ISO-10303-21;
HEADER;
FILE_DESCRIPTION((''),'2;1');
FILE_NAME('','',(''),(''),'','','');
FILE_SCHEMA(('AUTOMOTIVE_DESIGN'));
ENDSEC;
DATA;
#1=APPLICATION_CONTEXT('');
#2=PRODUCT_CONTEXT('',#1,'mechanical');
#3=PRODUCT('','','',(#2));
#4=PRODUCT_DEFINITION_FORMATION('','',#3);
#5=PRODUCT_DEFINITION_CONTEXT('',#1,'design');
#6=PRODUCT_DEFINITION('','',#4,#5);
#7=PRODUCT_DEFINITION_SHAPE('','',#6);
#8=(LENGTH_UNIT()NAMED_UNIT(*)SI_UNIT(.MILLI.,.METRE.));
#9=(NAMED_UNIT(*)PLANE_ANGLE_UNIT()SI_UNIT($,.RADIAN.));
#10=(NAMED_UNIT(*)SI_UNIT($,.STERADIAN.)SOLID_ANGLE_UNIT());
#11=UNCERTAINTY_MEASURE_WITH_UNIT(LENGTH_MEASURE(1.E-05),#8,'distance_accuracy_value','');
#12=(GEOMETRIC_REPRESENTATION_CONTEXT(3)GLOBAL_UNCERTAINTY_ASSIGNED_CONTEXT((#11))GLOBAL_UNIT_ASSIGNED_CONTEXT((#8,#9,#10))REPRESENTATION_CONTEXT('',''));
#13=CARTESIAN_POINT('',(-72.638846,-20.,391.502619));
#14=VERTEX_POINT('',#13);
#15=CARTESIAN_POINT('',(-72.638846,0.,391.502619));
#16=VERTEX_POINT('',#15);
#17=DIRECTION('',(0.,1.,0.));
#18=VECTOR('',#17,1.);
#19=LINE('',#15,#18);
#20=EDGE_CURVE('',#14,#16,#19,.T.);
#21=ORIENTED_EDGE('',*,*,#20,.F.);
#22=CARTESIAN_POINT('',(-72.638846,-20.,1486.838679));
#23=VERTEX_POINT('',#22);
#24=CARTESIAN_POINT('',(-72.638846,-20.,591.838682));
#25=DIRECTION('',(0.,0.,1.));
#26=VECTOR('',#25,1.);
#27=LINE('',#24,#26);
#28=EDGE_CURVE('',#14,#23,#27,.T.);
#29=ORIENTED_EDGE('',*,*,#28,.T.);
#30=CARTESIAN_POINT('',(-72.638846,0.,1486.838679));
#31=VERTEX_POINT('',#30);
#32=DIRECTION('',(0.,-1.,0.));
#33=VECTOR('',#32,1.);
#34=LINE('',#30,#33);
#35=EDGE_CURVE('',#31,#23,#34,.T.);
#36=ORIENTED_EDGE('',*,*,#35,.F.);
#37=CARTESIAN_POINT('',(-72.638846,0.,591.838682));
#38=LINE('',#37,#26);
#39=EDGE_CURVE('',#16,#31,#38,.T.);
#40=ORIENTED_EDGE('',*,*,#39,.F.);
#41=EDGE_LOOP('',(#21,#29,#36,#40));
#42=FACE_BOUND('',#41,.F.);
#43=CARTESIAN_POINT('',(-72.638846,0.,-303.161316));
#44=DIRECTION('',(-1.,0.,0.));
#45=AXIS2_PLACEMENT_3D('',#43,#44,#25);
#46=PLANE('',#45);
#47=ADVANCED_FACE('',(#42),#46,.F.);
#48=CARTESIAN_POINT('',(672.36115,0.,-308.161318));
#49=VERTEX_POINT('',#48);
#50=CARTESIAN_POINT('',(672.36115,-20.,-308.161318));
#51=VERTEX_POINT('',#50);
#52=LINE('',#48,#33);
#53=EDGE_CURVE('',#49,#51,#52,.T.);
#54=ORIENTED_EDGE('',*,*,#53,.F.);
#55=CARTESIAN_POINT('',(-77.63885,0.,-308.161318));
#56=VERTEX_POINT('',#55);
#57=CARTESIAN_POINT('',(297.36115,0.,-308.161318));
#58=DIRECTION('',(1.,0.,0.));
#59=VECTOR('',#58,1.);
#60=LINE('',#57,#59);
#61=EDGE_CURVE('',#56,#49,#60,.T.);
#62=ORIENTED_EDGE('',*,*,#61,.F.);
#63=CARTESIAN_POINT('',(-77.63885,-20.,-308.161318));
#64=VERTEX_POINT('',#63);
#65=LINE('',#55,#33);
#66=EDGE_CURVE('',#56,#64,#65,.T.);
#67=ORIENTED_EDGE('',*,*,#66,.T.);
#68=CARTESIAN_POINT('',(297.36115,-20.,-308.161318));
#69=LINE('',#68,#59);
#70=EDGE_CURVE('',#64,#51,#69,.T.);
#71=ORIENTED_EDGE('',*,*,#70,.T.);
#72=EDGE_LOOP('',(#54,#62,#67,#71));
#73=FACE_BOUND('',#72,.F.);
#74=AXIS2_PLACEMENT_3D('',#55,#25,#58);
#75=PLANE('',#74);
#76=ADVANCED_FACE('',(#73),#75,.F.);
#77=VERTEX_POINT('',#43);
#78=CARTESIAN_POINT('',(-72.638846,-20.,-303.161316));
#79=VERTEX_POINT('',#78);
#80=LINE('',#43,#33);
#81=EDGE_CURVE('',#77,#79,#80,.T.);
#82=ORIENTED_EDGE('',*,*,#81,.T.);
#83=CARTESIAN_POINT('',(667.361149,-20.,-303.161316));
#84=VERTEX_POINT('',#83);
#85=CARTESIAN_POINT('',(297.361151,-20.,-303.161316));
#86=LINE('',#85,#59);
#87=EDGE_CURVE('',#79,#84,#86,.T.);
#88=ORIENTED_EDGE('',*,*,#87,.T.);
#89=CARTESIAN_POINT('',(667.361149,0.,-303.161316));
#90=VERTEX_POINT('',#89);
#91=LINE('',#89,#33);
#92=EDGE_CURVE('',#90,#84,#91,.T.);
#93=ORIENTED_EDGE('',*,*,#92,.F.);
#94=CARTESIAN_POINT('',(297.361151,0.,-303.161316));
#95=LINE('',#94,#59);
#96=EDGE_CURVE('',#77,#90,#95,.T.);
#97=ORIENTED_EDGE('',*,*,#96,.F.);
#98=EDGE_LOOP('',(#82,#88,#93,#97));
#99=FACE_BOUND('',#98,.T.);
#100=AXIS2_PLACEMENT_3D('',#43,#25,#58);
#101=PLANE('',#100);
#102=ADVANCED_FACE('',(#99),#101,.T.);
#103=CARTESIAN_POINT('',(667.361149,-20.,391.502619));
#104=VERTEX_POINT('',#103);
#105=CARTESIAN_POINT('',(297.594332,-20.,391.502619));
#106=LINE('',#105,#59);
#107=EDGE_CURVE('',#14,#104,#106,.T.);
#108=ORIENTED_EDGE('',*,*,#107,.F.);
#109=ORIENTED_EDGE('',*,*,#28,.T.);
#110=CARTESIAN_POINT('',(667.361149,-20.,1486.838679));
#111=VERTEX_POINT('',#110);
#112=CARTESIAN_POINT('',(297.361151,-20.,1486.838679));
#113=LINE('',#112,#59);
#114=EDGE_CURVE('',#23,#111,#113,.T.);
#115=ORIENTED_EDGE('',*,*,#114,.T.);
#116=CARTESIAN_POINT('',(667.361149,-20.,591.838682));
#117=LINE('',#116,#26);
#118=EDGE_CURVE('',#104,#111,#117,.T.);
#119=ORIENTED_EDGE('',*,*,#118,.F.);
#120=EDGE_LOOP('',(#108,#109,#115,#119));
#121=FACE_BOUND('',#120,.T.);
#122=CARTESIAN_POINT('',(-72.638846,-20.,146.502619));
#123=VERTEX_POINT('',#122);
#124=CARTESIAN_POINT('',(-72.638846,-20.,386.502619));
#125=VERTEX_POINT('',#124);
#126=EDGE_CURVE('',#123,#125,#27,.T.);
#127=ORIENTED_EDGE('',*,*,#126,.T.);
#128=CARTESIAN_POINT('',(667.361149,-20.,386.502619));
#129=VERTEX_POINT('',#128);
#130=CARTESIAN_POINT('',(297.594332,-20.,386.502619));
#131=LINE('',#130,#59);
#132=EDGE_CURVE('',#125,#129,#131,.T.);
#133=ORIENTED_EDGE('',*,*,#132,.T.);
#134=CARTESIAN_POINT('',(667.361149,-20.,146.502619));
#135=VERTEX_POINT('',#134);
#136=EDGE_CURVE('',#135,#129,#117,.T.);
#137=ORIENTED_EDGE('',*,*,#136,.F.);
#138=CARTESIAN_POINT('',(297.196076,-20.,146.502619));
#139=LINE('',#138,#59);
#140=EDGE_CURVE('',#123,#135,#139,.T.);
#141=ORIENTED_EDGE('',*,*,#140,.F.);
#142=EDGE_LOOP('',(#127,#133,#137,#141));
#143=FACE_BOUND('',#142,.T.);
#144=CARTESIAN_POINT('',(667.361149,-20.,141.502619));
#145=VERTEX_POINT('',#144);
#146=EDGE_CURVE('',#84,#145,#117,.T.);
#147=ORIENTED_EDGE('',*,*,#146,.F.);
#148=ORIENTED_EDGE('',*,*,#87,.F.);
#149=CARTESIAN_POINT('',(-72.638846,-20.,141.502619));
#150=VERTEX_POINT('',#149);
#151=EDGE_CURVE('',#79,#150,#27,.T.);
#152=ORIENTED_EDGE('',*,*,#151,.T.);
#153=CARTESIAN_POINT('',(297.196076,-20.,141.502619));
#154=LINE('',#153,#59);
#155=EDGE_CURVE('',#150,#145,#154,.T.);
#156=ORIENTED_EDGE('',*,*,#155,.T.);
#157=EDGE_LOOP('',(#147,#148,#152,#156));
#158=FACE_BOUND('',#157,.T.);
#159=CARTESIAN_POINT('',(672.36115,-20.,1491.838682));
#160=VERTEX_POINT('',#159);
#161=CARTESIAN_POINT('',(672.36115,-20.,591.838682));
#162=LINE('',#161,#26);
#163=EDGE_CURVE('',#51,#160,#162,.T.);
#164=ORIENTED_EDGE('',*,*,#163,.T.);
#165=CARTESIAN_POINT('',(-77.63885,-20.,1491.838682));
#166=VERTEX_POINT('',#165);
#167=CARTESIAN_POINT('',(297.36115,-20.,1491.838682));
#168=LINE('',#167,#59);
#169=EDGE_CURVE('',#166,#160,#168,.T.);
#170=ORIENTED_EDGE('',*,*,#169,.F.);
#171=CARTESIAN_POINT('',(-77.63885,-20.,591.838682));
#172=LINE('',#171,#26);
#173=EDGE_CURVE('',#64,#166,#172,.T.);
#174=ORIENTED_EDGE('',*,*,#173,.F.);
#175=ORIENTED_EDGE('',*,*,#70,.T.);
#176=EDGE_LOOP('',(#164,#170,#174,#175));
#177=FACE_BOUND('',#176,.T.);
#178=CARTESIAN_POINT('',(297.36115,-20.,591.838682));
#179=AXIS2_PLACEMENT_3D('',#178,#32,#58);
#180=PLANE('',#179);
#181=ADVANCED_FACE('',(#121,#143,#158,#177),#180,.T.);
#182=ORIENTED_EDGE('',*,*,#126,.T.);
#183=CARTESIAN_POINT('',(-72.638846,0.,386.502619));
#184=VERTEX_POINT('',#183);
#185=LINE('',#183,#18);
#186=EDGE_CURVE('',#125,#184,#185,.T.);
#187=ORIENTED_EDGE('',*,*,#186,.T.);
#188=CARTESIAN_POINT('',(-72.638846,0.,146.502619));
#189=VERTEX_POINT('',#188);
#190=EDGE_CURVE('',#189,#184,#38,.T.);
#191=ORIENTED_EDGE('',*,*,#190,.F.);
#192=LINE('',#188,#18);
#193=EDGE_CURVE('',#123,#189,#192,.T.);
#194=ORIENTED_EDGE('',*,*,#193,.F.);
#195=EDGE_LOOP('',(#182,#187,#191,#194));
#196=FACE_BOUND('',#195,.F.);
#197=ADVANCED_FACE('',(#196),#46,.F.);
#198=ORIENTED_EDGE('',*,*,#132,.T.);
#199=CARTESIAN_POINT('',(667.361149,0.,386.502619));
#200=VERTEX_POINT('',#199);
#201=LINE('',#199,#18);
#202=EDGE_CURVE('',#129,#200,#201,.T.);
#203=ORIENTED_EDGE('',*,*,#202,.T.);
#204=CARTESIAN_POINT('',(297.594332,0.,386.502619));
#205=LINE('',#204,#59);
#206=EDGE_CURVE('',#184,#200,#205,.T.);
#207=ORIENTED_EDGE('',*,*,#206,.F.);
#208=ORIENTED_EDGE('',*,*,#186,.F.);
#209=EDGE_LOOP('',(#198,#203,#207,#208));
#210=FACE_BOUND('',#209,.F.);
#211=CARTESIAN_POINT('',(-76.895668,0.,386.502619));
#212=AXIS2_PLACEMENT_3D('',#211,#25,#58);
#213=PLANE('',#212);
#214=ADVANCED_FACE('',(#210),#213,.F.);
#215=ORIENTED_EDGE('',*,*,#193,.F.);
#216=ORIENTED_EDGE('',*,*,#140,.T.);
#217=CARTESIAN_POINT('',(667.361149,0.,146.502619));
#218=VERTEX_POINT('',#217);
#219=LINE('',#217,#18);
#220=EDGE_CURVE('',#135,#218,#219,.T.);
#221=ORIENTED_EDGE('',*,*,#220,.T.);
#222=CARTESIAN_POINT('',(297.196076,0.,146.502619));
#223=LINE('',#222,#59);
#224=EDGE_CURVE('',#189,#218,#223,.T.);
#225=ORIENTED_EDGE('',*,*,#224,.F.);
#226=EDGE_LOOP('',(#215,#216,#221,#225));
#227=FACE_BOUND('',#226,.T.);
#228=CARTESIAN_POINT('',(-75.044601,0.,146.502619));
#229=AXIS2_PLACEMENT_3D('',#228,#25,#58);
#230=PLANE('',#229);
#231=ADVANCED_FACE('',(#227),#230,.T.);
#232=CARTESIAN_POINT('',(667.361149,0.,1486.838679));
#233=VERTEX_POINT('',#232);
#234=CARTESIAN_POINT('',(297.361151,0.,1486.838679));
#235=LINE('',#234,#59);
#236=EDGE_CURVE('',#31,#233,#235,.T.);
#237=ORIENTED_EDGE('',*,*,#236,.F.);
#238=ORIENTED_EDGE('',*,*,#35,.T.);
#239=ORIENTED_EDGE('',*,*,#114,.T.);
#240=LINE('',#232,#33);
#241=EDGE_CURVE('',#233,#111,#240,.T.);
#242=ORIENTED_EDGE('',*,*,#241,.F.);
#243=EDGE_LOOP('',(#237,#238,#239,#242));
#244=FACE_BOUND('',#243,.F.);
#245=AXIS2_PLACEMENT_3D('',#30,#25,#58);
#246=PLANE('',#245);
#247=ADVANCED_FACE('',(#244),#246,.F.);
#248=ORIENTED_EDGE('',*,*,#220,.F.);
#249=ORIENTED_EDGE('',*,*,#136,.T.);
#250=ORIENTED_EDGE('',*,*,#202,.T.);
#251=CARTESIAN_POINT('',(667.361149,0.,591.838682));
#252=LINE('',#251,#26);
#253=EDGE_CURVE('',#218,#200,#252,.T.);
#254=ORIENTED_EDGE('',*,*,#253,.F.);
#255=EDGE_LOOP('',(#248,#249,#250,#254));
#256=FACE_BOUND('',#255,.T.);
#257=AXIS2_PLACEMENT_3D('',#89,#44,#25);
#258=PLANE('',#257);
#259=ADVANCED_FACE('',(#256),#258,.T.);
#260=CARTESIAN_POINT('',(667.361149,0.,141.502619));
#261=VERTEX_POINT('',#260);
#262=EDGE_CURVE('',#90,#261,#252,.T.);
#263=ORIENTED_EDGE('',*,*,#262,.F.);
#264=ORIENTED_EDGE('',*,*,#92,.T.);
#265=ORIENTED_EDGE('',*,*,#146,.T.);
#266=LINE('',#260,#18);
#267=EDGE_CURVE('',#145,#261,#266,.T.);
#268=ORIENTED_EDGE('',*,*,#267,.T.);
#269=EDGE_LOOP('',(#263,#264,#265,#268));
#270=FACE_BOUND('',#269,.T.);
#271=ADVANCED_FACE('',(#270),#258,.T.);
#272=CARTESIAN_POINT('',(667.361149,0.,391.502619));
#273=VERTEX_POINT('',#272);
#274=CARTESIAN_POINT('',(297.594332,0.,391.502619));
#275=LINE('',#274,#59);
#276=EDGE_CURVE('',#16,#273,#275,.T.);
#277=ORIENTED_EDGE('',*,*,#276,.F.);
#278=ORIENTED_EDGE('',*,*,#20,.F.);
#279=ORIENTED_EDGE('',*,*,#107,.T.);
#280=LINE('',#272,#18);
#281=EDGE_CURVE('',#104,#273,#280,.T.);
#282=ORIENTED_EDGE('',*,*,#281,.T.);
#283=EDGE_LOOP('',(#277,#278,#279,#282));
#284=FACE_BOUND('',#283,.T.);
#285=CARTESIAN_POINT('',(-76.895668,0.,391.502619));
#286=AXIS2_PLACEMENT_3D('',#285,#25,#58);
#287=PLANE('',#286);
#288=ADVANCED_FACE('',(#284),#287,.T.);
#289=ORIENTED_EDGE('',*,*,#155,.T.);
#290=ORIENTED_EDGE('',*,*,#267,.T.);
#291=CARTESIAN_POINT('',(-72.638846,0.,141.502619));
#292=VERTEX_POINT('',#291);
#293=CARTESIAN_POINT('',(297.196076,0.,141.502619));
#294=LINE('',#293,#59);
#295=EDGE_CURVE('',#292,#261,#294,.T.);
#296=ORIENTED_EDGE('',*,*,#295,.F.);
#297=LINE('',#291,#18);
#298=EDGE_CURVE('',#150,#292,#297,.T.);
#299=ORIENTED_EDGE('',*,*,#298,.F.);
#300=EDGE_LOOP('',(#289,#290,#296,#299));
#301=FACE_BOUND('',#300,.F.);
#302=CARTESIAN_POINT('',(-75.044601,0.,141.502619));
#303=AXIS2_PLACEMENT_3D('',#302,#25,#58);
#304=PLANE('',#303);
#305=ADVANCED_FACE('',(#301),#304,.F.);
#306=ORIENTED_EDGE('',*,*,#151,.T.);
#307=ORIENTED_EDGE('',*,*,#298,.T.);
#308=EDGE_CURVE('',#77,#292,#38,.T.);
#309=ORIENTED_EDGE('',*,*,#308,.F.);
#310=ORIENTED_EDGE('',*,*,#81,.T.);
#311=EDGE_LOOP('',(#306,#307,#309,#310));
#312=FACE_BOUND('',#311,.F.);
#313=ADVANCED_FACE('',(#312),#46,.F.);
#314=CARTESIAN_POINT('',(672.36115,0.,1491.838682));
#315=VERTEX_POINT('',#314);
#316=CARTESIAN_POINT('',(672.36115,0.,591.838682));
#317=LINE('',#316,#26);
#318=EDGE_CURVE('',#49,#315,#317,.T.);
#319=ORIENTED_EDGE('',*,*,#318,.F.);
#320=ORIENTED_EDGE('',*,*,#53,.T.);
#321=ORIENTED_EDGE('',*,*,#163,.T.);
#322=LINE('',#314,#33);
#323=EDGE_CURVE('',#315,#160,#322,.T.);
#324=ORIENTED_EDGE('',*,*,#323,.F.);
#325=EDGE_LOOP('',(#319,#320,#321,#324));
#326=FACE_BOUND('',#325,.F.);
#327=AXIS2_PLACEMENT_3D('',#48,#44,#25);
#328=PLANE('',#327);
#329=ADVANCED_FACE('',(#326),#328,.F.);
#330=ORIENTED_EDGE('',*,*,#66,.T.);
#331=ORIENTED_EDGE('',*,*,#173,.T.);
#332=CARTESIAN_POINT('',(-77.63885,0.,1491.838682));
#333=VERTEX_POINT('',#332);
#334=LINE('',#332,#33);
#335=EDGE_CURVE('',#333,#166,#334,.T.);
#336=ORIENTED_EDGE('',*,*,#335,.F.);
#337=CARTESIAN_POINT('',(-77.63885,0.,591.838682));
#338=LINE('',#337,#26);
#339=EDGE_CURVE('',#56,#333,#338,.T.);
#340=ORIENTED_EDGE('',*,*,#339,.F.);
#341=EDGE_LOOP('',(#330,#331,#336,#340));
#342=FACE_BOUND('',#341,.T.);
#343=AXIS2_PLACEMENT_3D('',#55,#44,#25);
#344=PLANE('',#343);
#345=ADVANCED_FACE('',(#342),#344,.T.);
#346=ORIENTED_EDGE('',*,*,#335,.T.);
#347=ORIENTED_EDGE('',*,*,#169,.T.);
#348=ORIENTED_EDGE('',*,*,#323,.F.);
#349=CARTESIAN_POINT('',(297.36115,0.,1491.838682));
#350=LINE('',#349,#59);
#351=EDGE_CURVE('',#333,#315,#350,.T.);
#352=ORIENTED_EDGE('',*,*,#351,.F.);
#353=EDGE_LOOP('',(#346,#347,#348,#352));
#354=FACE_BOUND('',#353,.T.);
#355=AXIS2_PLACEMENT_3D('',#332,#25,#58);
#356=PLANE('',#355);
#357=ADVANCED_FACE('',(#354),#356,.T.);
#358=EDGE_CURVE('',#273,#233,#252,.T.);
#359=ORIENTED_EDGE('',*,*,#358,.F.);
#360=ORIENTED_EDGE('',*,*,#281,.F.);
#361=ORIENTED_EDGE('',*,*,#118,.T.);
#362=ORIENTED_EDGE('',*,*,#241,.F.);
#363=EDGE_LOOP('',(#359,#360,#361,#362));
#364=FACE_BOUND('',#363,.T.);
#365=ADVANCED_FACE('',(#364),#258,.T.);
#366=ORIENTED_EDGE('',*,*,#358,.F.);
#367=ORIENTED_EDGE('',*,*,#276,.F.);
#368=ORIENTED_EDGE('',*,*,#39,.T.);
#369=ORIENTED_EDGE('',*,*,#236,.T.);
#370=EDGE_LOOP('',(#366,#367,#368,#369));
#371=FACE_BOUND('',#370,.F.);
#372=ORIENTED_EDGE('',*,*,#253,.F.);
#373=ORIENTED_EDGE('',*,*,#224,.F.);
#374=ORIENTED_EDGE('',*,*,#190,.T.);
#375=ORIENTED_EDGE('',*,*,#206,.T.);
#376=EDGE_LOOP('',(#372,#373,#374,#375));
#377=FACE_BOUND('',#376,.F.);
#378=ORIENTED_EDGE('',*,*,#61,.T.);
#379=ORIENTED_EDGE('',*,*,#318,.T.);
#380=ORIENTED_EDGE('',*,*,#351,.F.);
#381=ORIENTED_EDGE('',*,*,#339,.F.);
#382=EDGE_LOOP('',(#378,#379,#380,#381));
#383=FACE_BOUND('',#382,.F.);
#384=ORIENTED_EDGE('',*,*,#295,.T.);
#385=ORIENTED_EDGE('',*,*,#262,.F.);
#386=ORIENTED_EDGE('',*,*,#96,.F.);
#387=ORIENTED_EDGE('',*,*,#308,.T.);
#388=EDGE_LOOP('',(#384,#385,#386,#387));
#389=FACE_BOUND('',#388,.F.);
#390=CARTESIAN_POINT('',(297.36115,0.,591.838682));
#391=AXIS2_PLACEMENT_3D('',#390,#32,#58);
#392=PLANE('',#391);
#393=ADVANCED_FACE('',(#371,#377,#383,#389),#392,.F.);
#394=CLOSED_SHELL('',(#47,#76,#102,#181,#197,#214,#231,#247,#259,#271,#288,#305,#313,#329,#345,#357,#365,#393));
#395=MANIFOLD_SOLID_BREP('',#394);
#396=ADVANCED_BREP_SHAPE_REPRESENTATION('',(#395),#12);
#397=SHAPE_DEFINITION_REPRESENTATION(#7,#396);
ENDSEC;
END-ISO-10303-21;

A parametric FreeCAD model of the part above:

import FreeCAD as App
import Part
import Sketcher
from FreeCAD import Vector

doc = App.newDocument("Part")
body = doc.addObject("PartDesign::Body", "Body")

# Sketch on XZ plane
sketch1 = body.newObject("Sketcher::SketchObject", "Sketch")
sketch1.AttachmentSupport = (doc.getObject("XZ_Plane"), [""])
sketch1.MapMode = "FlatFace"
sketch1.addGeometry([
    Part.LineSegment(Vector(-77.63885, 1491.838682, 0), Vector(-77.63885, -308.161318, 0)),  # 0
    Part.LineSegment(Vector(-77.63885, -308.161318, 0), Vector(672.36115, -308.161318, 0)),  # 1
    Part.LineSegment(Vector(672.36115, -308.161318, 0), Vector(672.36115, 1491.838682, 0)),  # 2
    Part.LineSegment(Vector(672.36115, 1491.838682, 0), Vector(-77.63885, 1491.838682, 0)),  # 3
    Part.LineSegment(Vector(667.361149, -303.161316, 0), Vector(-72.638846, -303.161316, 0)),  # 4
    Part.LineSegment(Vector(-72.638846, -303.161316, 0), Vector(-72.638846, 1486.838679, 0)),  # 5
    Part.LineSegment(Vector(-72.638846, 1486.838679, 0), Vector(667.361149, 1486.838679, 0)),  # 6
    Part.LineSegment(Vector(667.361149, 1486.838679, 0), Vector(667.361149, -303.161316, 0)),  # 7
], False)
sketch1.addConstraint([
    Sketcher.Constraint("Coincident", 0, 2, 1, 1),
    Sketcher.Constraint("Coincident", 1, 2, 2, 1),
    Sketcher.Constraint("Coincident", 2, 2, 3, 1),
    Sketcher.Constraint("Coincident", 3, 2, 0, 1),
    Sketcher.Constraint("Coincident", 4, 2, 5, 1),
    Sketcher.Constraint("Coincident", 5, 2, 6, 1),
    Sketcher.Constraint("Coincident", 6, 2, 7, 1),
    Sketcher.Constraint("Coincident", 7, 2, 4, 1),
    Sketcher.Constraint("Vertical", 0),
    Sketcher.Constraint("Horizontal", 1),
    Sketcher.Constraint("Vertical", 2),
    Sketcher.Constraint("Horizontal", 3),
    Sketcher.Constraint("Horizontal", 4),
    Sketcher.Constraint("Vertical", 5),
    Sketcher.Constraint("Horizontal", 6),
    Sketcher.Constraint("Vertical", 7),
    Sketcher.Constraint("DistanceX", 1, 1, 1, 2, 750.0),
    Sketcher.Constraint("DistanceY", 0, 2, 0, 1, 1800.0),
    Sketcher.Constraint("DistanceX", 6, 2, 2, 2, 5.000001),
    Sketcher.Constraint("DistanceX", 4, 2, 4, 1, 739.999995),
    Sketcher.Constraint("DistanceY", 5, 1, 5, 2, 1789.999995),
    Sketcher.Constraint("DistanceX", 0, 2, -1, 1, 77.63885),
    Sketcher.Constraint("DistanceY", 0, 2, -1, 1, 308.161318),
    Sketcher.Constraint("DistanceY", -1, 1, 5, 2, 1486.838679),
])
pad1 = body.newObject("PartDesign::Pad", "Pad")
pad1.Profile = sketch1
pad1.Length = 20

# Sketch on XZ plane
sketch2 = body.newObject("Sketcher::SketchObject", "Sketch001")
sketch2.AttachmentSupport = (doc.getObject("XZ_Plane"), [""])
sketch2.MapMode = "FlatFace"
sketch2.addGeometry([
    Part.LineSegment(Vector(-76.895668, 391.502619, 0), Vector(-76.895668, 386.502619, 0)),  # 0
    Part.LineSegment(Vector(-76.895668, 386.502619, 0), Vector(672.084332, 386.502619, 0)),  # 1
    Part.LineSegment(Vector(672.084332, 386.502619, 0), Vector(672.084332, 391.502619, 0)),  # 2
    Part.LineSegment(Vector(672.084332, 391.502619, 0), Vector(-76.895668, 391.502619, 0)),  # 3
    Part.LineSegment(Vector(-75.044601, 146.502619, 0), Vector(-75.044601, 141.502619, 0)),  # 4
    Part.LineSegment(Vector(-75.044601, 141.502619, 0), Vector(669.436754, 141.502619, 0)),  # 5
    Part.LineSegment(Vector(669.436754, 141.502619, 0), Vector(669.436754, 146.502619, 0)),  # 6
    Part.LineSegment(Vector(669.436754, 146.502619, 0), Vector(-75.044601, 146.502619, 0)),  # 7
], False)
sketch2.addConstraint([
    Sketcher.Constraint("Coincident", 0, 2, 1, 1),
    Sketcher.Constraint("Coincident", 1, 2, 2, 1),
    Sketcher.Constraint("Coincident", 2, 2, 3, 1),
    Sketcher.Constraint("Coincident", 3, 2, 0, 1),
    Sketcher.Constraint("Coincident", 4, 2, 5, 1),
    Sketcher.Constraint("Coincident", 5, 2, 6, 1),
    Sketcher.Constraint("Coincident", 6, 2, 7, 1),
    Sketcher.Constraint("Coincident", 7, 2, 4, 1),
    Sketcher.Constraint("Vertical", 0),
    Sketcher.Constraint("Horizontal", 1),
    Sketcher.Constraint("Vertical", 2),
    Sketcher.Constraint("Horizontal", 3),
    Sketcher.Constraint("Vertical", 4),
    Sketcher.Constraint("Horizontal", 5),
    Sketcher.Constraint("Vertical", 6),
    Sketcher.Constraint("Horizontal", 7),
    Sketcher.Constraint("Equal", 2, 4),
    Sketcher.Constraint("DistanceY", 0, 2, 0, 1, 5.0),
    Sketcher.Constraint("DistanceY", 4, 2, 0, 2, 245.0),
    Sketcher.Constraint("DistanceX", 1, 1, 1, 2, 748.980001),
    Sketcher.Constraint("DistanceX", 4, 2, -1, 1, 75.044601),
    Sketcher.Constraint("DistanceX", 5, 1, 5, 2, 744.481355),
    Sketcher.Constraint("DistanceX", 0, 2, -1, 1, 76.895668),
    Sketcher.Constraint("DistanceY", -1, 1, 0, 2, 386.502619),
])
pad2 = body.newObject("PartDesign::Pad", "Pad001")
pad2.Profile = sketch2
pad2.Length = 20

doc.recompute()
